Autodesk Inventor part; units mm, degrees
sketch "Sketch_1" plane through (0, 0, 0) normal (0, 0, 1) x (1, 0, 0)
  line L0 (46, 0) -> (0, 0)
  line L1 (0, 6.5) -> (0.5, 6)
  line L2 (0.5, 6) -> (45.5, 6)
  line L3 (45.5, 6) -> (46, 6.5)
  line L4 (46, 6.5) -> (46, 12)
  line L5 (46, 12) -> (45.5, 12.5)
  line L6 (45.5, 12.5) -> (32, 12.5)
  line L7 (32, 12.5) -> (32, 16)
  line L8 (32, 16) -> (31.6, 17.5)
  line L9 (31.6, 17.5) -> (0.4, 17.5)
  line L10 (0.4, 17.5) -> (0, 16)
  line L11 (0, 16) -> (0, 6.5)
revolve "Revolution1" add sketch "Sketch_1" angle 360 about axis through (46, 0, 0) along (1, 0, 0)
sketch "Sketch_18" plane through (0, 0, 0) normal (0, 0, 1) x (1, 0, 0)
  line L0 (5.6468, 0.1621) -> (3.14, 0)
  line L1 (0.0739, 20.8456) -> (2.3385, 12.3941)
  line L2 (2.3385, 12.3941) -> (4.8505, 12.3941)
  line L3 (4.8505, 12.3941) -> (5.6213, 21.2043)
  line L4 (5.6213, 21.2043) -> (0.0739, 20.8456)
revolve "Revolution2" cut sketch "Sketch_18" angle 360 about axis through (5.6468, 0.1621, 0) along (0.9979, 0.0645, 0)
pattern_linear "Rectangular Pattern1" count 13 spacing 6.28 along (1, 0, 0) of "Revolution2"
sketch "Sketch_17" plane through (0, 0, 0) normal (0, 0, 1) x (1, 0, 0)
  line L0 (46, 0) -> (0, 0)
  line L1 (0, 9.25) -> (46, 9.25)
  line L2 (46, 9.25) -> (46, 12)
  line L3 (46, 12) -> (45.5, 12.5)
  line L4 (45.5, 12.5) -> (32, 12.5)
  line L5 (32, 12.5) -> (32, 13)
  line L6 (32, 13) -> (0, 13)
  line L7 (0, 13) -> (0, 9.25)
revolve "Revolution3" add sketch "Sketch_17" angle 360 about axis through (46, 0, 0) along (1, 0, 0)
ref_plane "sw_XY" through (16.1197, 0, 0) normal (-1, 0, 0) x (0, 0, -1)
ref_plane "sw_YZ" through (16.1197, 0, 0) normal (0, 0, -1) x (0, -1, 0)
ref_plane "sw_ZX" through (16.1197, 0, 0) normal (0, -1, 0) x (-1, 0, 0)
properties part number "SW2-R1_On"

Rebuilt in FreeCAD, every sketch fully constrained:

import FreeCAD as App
import Part
import Sketcher
Q = App.Units.Quantity


def add_polygon(sketch, points):
    """Adds a closed chain of lines whose ends are joined by coincident constraints."""
    first, n = sketch.GeometryCount, len(points)
    for a, b in zip(points, points[1:] + points[:1]):
        sketch.addGeometry(Part.LineSegment(App.Vector(*a, 0), App.Vector(*b, 0)), False)
    for i in range(n):
        sketch.addConstraint(Sketcher.Constraint("Coincident", first + i, 2, first + (i + 1) % n, 1))

doc = App.newDocument("Part")
body = doc.addObject("PartDesign::Body", "Body")

# Sketch on XY plane
sketch1 = body.newObject("Sketcher::SketchObject", "Sketch")
sketch1.AttachmentSupport = (doc.getObject("XY_Plane"), [""])
sketch1.MapMode = "FlatFace"
add_polygon(sketch1, [(0, 16), (0, 6.5), (0.5, 6), (45.5, 6), (46, 6.5), (46, 12), (45.5, 12.5), (32, 12.5), (32, 16), (31.6, 17.5), (0.4, 17.5)])  # lines 0-10
sketch1.addConstraint([
    Sketcher.Constraint("Vertical", 0),
    Sketcher.Constraint("Horizontal", 2),
    Sketcher.Constraint("Vertical", 4),
    Sketcher.Constraint("Horizontal", 6),
    Sketcher.Constraint("Vertical", 7),
    Sketcher.Constraint("Horizontal", 9),
    Sketcher.Constraint("PointOnObject", 0, 2, -2),
    Sketcher.Constraint("Perpendicular", 1, 3),
    Sketcher.Constraint("Perpendicular", 3, 5),
    Sketcher.Constraint("Horizontal", 0, 2, 3, 2),
    Sketcher.Constraint("Horizontal", 7, 2, 10, 2),
    Sketcher.Constraint("Vertical", 2, 2, 5, 2),
    Sketcher.Constraint("Equal", 1, 3),
    Sketcher.Constraint("Equal", 8, 10),
    Sketcher.Constraint("DistanceX", 2, 1, 2, 2, Q("45 mm")),
    Sketcher.Constraint("DistanceX", 6, 2, 6, 1, Q("13.5 mm")),
    Sketcher.Constraint("DistanceX", 9, 2, 9, 1, Q("31.2 mm")),
    Sketcher.Constraint("DistanceY", 0, 2, 0, 1, Q("9.5 mm")),
    Sketcher.Constraint("DistanceY", 4, 1, 4, 2, Q("5.5 mm")),
    Sketcher.Constraint("DistanceY", 7, 1, 7, 2, Q("3.5 mm")),
    Sketcher.Constraint("DistanceY", -1, 1, 1, 2, Q("6 mm")),
    Sketcher.Constraint("DistanceY", 6, 2, 8, 2, Q("5 mm")),
])
revolution = body.newObject("PartDesign::Revolution", "Revolution")
revolution.Profile = sketch1
revolution.ReferenceAxis = (sketch1, ["H_Axis"])
revolution.Angle = 360

# Sketch on XY plane
sketch2 = body.newObject("Sketcher::SketchObject", "Sketch001")
sketch2.AttachmentSupport = (doc.getObject("XY_Plane"), [""])
sketch2.MapMode = "FlatFace"
add_polygon(sketch2, [(5.6213, 21.2043), (0.0739, 20.8456), (2.3385, 12.3941), (4.8505, 12.3941)])  # lines 0-3
sketch2.addGeometry(Part.LineSegment(App.Vector(1.428417, -0.110558, 0), App.Vector(6.975826, 0.248003, 0)), True)  # axis
sketch2.addConstraint([
    Sketcher.Constraint("Horizontal", 2),
    Sketcher.Constraint("Parallel", 0, 4),
    Sketcher.Constraint("Equal", 0, 4),
    Sketcher.Constraint("Angle", 1, Q("-74.9998 deg")),
    Sketcher.Constraint("Angle", 3, Q("85 deg")),
    Sketcher.Constraint("Angle", 0, Q("-176.3004 deg")),
    Sketcher.Constraint("DistanceX", 2, 1, 2, 2, Q("2.512 mm")),
    Sketcher.Constraint("DistanceX", 4, 1, 1, 2, Q("0.91 mm")),
    Sketcher.Constraint("Distance", 0, Q("5.559 mm")),
    Sketcher.Constraint("DistanceX", -1, 1, 0, 2, Q("0.074 mm")),
    Sketcher.Constraint("DistanceY", -1, 1, 1, 2, Q("12.394 mm")),
    Sketcher.Constraint("DistanceY", -1, 1, 4, 2, Q("0.248 mm")),
])
groove = body.newObject("PartDesign::Groove", "Groove")
groove.Profile = sketch2
groove.ReferenceAxis = (sketch2, ["Axis0"])
groove.Angle = 360
doc.recompute()

linearpattern = body.newObject("PartDesign::LinearPattern", "LinearPattern")
linearpattern.Originals = [groove]
linearpattern.Direction = (doc.getObject("X_Axis"), [""])
linearpattern.Mode = "offset"
linearpattern.Offset = 6.28
linearpattern.Occurrences = 13
body.Tip = linearpattern

# Sketch on XY plane
sketch3 = body.newObject("Sketcher::SketchObject", "Sketch002")
sketch3.AttachmentSupport = (doc.getObject("XY_Plane"), [""])
sketch3.MapMode = "FlatFace"
add_polygon(sketch3, [(0, 13), (0, 9.25), (46, 9.25), (46, 12), (45.5, 12.5), (32, 12.5), (32, 13)])  # lines 0-6
sketch3.addConstraint([
    Sketcher.Constraint("Vertical", 0),
    Sketcher.Constraint("Horizontal", 1),
    Sketcher.Constraint("Vertical", 2),
    Sketcher.Constraint("Horizontal", 4),
    Sketcher.Constraint("Vertical", 5),
    Sketcher.Constraint("Horizontal", 6),
    Sketcher.Constraint("PointOnObject", 0, 2, -2),
    Sketcher.Constraint("DistanceX", 1, 1, 1, 2, Q("46 mm")),
    Sketcher.Constraint("DistanceX", 6, 2, 6, 1, Q("32 mm")),
    Sketcher.Constraint("Angle", 3, Q("135 deg")),
    Sketcher.Constraint("DistanceX", 4, 2, 4, 1, Q("13.5 mm")),
    Sketcher.Constraint("DistanceY", 5, 1, 5, 2, Q("0.5 mm")),
    Sketcher.Constraint("DistanceY", -1, 1, 2, 2, Q("12 mm")),
    Sketcher.Constraint("DistanceY", 0, 2, 0, 1, Q("3.75 mm")),
])
revolution2 = body.newObject("PartDesign::Revolution", "Revolution001")
revolution2.Profile = sketch3
revolution2.ReferenceAxis = (sketch3, ["H_Axis"])
revolution2.Angle = 360

doc.recompute()
